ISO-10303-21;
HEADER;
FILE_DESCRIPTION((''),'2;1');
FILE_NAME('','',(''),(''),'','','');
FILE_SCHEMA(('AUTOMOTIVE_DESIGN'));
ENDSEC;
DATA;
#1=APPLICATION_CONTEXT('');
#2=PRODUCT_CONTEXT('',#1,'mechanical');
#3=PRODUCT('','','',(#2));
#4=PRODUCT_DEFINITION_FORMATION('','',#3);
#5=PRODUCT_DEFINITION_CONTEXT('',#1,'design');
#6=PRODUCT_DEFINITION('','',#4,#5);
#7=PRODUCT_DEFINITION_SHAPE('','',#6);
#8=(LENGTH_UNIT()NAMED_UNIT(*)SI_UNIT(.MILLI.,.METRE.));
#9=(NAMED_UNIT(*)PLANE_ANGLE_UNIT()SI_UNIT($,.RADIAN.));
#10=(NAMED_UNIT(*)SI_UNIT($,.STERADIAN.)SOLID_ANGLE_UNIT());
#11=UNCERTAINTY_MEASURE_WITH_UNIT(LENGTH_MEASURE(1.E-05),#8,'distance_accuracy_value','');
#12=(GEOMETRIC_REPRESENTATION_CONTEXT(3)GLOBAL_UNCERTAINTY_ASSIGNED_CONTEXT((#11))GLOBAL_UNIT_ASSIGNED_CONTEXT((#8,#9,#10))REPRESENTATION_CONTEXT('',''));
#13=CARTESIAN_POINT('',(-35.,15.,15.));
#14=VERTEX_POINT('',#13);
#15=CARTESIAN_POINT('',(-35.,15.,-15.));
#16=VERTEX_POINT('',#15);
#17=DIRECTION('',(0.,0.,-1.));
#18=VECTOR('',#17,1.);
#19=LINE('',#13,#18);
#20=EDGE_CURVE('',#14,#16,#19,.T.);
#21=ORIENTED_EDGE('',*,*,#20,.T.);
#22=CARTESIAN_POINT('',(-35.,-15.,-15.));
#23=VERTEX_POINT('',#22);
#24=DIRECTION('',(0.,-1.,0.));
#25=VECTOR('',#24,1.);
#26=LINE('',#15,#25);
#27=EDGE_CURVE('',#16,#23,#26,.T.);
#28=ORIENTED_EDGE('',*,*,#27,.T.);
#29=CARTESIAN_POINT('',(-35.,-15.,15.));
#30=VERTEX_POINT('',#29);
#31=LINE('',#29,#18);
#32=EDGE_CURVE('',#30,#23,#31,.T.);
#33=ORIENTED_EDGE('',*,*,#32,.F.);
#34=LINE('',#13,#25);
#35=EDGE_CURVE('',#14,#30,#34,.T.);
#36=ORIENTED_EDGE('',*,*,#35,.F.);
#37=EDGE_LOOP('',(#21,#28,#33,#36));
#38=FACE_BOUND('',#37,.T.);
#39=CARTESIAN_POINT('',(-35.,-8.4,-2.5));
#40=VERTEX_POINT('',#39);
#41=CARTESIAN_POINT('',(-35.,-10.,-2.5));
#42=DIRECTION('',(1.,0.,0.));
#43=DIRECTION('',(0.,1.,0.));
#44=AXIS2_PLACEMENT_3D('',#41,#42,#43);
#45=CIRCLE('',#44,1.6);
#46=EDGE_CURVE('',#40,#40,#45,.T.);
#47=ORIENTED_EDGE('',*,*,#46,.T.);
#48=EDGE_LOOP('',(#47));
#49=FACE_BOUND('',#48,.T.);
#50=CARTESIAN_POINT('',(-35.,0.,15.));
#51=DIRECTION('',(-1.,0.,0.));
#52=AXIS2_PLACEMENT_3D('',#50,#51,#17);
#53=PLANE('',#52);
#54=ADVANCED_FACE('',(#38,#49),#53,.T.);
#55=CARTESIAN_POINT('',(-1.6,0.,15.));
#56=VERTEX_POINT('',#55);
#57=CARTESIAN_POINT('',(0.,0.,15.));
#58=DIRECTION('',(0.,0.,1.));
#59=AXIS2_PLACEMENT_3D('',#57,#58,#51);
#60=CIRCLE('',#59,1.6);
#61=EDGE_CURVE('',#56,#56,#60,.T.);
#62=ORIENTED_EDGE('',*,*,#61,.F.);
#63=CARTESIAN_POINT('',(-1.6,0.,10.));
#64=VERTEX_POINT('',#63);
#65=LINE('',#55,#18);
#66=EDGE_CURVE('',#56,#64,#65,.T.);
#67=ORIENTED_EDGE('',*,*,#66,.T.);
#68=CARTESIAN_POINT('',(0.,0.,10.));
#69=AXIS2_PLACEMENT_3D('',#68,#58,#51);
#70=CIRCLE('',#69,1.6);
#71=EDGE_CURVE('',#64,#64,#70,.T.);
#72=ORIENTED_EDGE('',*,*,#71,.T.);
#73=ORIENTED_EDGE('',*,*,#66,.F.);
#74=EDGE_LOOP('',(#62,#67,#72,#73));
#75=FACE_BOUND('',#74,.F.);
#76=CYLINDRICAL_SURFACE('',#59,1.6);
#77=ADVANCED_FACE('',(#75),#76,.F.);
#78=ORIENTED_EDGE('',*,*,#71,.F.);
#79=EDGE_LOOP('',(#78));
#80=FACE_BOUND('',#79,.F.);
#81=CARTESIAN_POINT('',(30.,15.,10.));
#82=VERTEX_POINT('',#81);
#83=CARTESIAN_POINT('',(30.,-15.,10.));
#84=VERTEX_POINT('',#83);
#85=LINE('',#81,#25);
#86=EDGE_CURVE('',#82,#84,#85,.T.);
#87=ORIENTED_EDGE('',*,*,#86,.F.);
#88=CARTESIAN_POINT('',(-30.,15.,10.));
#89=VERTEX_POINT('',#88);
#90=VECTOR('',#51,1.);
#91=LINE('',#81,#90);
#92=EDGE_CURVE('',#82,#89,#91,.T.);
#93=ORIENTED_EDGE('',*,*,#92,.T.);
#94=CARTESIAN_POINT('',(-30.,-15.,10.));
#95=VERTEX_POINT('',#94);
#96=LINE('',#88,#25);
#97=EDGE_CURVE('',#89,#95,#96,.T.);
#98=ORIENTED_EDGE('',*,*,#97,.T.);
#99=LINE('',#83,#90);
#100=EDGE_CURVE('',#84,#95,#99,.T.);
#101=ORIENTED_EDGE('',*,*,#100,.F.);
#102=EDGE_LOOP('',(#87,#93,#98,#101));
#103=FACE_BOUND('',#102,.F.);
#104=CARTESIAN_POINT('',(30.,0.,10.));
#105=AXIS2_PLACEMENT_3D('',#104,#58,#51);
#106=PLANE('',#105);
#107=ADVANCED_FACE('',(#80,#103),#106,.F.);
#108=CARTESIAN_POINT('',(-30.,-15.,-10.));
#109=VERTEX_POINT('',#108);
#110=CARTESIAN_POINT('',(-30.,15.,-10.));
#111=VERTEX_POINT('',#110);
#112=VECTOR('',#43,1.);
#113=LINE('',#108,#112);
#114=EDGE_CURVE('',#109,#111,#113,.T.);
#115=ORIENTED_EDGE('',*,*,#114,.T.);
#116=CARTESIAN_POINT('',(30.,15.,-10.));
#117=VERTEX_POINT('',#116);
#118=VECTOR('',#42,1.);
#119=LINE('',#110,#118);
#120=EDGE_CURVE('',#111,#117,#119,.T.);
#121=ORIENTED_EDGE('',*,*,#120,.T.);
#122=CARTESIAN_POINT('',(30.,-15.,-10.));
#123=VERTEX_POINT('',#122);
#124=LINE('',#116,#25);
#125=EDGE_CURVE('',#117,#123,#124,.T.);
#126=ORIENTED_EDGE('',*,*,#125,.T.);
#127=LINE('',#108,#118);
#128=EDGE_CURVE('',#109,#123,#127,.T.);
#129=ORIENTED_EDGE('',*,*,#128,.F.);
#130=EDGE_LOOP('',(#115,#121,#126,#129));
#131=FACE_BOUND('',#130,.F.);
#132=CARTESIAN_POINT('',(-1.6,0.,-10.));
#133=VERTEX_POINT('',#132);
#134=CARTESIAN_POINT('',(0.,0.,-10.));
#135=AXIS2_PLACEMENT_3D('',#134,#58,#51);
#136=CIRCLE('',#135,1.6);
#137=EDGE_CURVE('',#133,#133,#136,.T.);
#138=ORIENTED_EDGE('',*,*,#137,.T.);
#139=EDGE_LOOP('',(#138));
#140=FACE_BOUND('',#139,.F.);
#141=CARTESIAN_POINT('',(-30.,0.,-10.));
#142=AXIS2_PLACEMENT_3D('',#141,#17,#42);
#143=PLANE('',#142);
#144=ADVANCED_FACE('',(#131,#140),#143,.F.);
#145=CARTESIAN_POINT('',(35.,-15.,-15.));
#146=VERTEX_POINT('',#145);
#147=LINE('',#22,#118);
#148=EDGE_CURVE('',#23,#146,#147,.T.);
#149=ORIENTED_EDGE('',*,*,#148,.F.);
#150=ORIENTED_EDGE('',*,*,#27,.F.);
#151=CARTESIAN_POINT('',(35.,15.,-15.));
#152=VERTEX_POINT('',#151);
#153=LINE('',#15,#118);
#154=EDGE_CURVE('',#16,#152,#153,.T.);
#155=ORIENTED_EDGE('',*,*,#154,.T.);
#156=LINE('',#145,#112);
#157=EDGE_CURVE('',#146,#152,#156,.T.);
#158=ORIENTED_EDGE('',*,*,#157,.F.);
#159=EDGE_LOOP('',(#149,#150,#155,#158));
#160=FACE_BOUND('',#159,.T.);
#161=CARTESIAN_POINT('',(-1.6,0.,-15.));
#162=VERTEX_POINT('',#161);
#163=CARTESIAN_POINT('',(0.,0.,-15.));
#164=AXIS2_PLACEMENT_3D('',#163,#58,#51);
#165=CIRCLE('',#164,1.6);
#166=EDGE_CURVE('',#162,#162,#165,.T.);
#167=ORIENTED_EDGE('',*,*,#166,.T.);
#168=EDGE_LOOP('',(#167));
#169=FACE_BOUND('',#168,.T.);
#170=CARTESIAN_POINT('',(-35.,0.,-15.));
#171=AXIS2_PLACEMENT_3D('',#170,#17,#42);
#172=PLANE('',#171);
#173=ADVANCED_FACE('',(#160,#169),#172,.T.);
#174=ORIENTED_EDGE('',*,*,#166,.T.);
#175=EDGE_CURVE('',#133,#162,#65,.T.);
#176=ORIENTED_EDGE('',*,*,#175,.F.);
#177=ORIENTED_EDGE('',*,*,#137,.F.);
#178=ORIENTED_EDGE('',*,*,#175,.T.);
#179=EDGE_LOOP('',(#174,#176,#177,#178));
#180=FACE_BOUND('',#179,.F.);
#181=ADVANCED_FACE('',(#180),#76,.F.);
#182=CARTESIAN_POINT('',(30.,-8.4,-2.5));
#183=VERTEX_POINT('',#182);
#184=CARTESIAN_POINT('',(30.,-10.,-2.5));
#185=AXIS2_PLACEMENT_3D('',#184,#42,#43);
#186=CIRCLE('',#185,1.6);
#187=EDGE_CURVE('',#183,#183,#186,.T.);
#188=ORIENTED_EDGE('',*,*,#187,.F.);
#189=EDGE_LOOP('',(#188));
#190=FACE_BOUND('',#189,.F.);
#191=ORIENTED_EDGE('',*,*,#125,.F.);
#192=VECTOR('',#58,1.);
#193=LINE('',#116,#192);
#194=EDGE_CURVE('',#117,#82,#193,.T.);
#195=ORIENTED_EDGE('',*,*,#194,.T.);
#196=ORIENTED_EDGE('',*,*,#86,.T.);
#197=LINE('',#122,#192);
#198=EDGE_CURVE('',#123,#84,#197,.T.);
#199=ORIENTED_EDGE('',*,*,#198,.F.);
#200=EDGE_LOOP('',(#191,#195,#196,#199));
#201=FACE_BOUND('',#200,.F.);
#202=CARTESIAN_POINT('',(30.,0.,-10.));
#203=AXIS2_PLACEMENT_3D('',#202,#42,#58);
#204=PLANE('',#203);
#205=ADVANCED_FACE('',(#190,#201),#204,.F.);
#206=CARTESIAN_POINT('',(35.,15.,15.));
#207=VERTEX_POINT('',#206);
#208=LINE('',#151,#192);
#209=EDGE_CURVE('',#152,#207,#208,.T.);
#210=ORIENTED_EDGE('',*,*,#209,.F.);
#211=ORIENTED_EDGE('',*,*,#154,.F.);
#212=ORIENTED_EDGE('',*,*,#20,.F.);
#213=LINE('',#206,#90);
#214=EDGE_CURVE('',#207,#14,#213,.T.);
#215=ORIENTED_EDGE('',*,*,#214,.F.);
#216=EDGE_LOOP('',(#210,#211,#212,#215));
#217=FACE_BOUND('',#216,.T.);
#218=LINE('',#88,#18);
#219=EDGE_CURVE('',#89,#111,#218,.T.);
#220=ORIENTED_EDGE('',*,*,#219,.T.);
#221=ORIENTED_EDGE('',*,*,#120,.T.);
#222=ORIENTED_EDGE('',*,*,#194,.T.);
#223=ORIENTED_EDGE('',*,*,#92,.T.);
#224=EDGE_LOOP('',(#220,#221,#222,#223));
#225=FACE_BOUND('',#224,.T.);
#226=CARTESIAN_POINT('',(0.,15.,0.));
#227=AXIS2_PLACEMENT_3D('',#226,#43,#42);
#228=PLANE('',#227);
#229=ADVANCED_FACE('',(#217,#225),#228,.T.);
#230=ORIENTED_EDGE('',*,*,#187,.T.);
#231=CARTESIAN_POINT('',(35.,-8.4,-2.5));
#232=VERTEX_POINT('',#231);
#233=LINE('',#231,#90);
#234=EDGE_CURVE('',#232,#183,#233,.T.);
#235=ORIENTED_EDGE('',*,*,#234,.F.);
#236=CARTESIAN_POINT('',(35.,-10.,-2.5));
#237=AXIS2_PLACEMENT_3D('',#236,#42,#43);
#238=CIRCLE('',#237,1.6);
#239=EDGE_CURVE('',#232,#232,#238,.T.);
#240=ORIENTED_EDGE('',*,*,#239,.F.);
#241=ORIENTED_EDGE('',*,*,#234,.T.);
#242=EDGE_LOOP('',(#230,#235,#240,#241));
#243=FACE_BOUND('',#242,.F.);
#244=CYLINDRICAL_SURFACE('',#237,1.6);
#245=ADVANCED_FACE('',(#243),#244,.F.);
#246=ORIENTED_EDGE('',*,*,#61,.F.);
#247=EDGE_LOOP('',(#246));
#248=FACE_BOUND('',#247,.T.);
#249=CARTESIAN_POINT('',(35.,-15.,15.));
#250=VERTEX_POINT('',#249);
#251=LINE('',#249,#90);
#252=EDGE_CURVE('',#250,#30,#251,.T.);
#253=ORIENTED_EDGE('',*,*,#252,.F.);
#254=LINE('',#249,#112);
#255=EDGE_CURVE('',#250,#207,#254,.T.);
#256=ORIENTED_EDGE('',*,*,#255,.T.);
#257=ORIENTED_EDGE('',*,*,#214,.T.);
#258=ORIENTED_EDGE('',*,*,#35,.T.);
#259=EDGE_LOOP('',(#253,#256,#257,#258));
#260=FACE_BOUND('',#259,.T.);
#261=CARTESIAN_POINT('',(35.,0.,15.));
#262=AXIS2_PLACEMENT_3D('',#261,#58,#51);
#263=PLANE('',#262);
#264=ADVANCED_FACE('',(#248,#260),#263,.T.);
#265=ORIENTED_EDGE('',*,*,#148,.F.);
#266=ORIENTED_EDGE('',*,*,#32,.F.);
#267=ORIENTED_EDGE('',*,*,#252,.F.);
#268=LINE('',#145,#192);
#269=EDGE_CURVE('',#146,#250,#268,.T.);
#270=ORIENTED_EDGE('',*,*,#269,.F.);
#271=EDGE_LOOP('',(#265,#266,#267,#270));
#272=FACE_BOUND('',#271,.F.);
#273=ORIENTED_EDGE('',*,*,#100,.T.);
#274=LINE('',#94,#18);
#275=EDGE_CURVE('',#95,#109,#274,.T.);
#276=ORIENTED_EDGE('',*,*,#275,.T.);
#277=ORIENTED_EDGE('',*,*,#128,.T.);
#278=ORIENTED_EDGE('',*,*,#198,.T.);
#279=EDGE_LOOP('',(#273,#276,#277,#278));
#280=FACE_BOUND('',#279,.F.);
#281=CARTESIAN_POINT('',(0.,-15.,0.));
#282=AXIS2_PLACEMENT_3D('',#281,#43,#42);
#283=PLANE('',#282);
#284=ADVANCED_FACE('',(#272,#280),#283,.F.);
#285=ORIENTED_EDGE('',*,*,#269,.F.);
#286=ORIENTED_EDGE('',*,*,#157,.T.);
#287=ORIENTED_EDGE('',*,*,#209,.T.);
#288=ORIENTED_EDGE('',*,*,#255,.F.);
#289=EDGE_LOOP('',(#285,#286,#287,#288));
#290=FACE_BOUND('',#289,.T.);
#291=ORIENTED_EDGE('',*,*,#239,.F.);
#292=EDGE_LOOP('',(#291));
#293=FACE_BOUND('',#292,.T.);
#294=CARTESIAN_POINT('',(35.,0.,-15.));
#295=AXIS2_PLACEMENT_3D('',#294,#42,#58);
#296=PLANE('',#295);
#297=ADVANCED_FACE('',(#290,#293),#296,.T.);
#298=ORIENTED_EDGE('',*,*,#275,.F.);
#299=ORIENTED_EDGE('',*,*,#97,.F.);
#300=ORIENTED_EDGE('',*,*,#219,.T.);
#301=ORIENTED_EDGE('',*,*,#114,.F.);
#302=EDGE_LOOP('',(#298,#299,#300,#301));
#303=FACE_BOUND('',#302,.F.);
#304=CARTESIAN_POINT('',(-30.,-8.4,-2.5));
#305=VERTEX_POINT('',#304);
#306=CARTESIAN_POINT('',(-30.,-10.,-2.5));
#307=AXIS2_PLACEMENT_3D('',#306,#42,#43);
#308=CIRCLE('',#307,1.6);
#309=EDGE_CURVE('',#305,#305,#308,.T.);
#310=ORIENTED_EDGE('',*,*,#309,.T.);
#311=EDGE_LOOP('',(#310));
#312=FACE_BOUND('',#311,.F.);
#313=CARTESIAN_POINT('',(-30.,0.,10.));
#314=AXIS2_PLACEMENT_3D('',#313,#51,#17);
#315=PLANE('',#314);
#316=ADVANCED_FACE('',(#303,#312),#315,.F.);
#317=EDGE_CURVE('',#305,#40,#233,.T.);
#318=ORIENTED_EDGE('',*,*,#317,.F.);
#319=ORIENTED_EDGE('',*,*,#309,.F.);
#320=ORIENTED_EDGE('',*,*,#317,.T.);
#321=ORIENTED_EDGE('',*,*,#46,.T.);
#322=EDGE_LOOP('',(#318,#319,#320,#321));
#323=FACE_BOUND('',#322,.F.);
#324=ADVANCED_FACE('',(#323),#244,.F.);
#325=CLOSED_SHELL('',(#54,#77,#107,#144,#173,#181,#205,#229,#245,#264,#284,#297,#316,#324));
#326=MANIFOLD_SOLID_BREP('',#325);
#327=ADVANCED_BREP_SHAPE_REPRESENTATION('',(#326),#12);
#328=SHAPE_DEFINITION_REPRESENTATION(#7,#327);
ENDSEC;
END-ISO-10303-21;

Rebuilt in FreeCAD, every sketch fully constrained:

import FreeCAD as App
import Part
import Sketcher
from FreeCAD import Vector
Q = App.Units.Quantity


def add_polygon(sketch, points):
    """Adds a closed chain of lines whose ends are joined by coincident constraints."""
    first, n = sketch.GeometryCount, len(points)
    for a, b in zip(points, points[1:] + points[:1]):
        sketch.addGeometry(Part.LineSegment(App.Vector(*a, 0), App.Vector(*b, 0)), False)
    for i in range(n):
        sketch.addConstraint(Sketcher.Constraint("Coincident", first + i, 2, first + (i + 1) % n, 1))

doc = App.newDocument("Part")
body = doc.addObject("PartDesign::Body", "Body")

sketch1 = body.newObject("Sketcher::SketchObject", "Sketch")
sketch1.AttachmentSupport = (doc.getObject("XZ_Plane"), [""])
sketch1.MapMode = "FlatFace"
add_polygon(sketch1, [(-35, 15), (35, 15), (35, -15), (-35, -15)])
add_polygon(sketch1, [(-30, 10), (-30, -10), (30, -10), (30, 10)])
sketch1.addConstraint(Sketcher.Constraint("Horizontal", 0))
sketch1.addConstraint(Sketcher.Constraint("Vertical", 1))
sketch1.addConstraint(Sketcher.Constraint("Horizontal", 2))
sketch1.addConstraint(Sketcher.Constraint("Vertical", 3))
sketch1.addConstraint(Sketcher.Constraint("Vertical", 4))
sketch1.addConstraint(Sketcher.Constraint("Horizontal", 5))
sketch1.addConstraint(Sketcher.Constraint("Vertical", 6))
sketch1.addConstraint(Sketcher.Constraint("Horizontal", 7))
sketch1.addConstraint(Sketcher.Constraint("Symmetric", 0, 2, 2, 2, -1, 1))
sketch1.addConstraint(Sketcher.Constraint("Symmetric", 4, 2, 6, 2, -1, 1))
sketch1.addConstraint(Sketcher.Constraint("DistanceX", 0, 1, 0, 2, Q("70 mm")))
sketch1.addConstraint(Sketcher.Constraint("DistanceY", 1, 2, 1, 1, Q("30 mm")))
sketch1.addConstraint(Sketcher.Constraint("DistanceX", 4, 2, -1, 1, Q("30 mm")))
sketch1.addConstraint(Sketcher.Constraint("DistanceY", 2, 2, 4, 2, Q("5 mm")))
pad1 = body.newObject("PartDesign::Pad", "Pad")
pad1.Profile = sketch1
pad1.Length = 30
pad1.Midplane = True

sketch2 = body.newObject("Sketcher::SketchObject", "Sketch001")
sketch2.AttachmentSupport = (doc.getObject("YZ_Plane"), [""])
sketch2.MapMode = "FlatFace"
sketch2.AttachmentOffset = App.Placement(Vector(0, 0, 35), App.Rotation())
sketch2.addGeometry(Part.Circle(Vector(-10, -2.5, 0), Vector(0, 0, 1), 1.6), False)
sketch2.addConstraint(Sketcher.Constraint("Diameter", 0, Q("3.2 mm")))
sketch2.addConstraint(Sketcher.Constraint("DistanceX", 0, 3, -1, 1, Q("10 mm")))
sketch2.addConstraint(Sketcher.Constraint("DistanceY", 0, 3, -1, 1, Q("2.5 mm")))
pocket1 = body.newObject("PartDesign::Pocket", "Pocket")
pocket1.Profile = sketch2
pocket1.Length = 76

sketch3 = body.newObject("Sketcher::SketchObject", "Sketch002")
sketch3.AttachmentSupport = (doc.getObject("XY_Plane"), [""])
sketch3.MapMode = "FlatFace"
sketch3.AttachmentOffset = App.Placement(Vector(0, 0, 15), App.Rotation())
sketch3.addGeometry(Part.Circle(Vector(0, 0, 0), Vector(0, 0, 1), 1.6), False)
sketch3.addConstraint(Sketcher.Constraint("Coincident", 0, 3, -1, 1))
sketch3.addConstraint(Sketcher.Constraint("Diameter", 0, Q("3.2 mm")))
pocket2 = body.newObject("PartDesign::Pocket", "Pocket001")
pocket2.Profile = sketch3
pocket2.Length = 41

doc.recompute()
